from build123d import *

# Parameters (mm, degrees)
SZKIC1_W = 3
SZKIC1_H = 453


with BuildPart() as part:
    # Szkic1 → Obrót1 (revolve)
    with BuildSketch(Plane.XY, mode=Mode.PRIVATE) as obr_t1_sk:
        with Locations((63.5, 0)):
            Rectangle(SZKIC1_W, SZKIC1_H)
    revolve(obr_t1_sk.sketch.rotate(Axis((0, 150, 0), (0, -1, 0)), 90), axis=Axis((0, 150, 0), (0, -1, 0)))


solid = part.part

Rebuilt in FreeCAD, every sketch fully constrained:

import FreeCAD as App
import Part
import Sketcher

doc = App.newDocument("Part")
body = doc.addObject("PartDesign::Body", "Body")

# Sketch on XY plane
sketch1 = doc.addObject("Sketcher::SketchObject", "Sketch")
body.addObject(sketch1)
sketch1.AttachmentSupport = (doc.XY_Plane, [""])
sketch1.MapMode = "FlatFace"
sketch1.addGeometry(Part.LineSegment(App.Vector(62, 226.5, 0), App.Vector(62, -226.5, 0)), False)
sketch1.addGeometry(Part.LineSegment(App.Vector(62, -226.5, 0), App.Vector(65, -226.5, 0)), False)
sketch1.addGeometry(Part.LineSegment(App.Vector(65, -226.5, 0), App.Vector(65, 226.5, 0)), False)
sketch1.addGeometry(Part.LineSegment(App.Vector(65, 226.5, 0), App.Vector(62, 226.5, 0)), False)
sketch1.addConstraint(Sketcher.Constraint("Coincident", 0, 2, 1, 1))
sketch1.addConstraint(Sketcher.Constraint("Coincident", 1, 2, 2, 1))
sketch1.addConstraint(Sketcher.Constraint("Coincident", 2, 2, 3, 1))
sketch1.addConstraint(Sketcher.Constraint("Coincident", 3, 2, 0, 1))
sketch1.addConstraint(Sketcher.Constraint("Vertical", 0))
sketch1.addConstraint(Sketcher.Constraint("Horizontal", 1))
sketch1.addConstraint(Sketcher.Constraint("Vertical", 2))
sketch1.addConstraint(Sketcher.Constraint("Horizontal", 3))
sketch1.addConstraint(Sketcher.Constraint("DistanceX", 1, 1, 1, 2, 3.0))
sketch1.addConstraint(Sketcher.Constraint("DistanceY", 0, 2, 0, 1, 453.0))
sketch1.addConstraint(Sketcher.Constraint("DistanceX", -1, 1, 0, 2, 62.0))
sketch1.addConstraint(Sketcher.Constraint("DistanceY", 0, 2, -1, 1, 226.5))
revolution = doc.addObject("PartDesign::Revolution", "Revolution")
body.addObject(revolution)
revolution.Profile = sketch1
revolution.ReferenceAxis = (sketch1, ["V_Axis"])
revolution.Angle = 360

doc.recompute()
